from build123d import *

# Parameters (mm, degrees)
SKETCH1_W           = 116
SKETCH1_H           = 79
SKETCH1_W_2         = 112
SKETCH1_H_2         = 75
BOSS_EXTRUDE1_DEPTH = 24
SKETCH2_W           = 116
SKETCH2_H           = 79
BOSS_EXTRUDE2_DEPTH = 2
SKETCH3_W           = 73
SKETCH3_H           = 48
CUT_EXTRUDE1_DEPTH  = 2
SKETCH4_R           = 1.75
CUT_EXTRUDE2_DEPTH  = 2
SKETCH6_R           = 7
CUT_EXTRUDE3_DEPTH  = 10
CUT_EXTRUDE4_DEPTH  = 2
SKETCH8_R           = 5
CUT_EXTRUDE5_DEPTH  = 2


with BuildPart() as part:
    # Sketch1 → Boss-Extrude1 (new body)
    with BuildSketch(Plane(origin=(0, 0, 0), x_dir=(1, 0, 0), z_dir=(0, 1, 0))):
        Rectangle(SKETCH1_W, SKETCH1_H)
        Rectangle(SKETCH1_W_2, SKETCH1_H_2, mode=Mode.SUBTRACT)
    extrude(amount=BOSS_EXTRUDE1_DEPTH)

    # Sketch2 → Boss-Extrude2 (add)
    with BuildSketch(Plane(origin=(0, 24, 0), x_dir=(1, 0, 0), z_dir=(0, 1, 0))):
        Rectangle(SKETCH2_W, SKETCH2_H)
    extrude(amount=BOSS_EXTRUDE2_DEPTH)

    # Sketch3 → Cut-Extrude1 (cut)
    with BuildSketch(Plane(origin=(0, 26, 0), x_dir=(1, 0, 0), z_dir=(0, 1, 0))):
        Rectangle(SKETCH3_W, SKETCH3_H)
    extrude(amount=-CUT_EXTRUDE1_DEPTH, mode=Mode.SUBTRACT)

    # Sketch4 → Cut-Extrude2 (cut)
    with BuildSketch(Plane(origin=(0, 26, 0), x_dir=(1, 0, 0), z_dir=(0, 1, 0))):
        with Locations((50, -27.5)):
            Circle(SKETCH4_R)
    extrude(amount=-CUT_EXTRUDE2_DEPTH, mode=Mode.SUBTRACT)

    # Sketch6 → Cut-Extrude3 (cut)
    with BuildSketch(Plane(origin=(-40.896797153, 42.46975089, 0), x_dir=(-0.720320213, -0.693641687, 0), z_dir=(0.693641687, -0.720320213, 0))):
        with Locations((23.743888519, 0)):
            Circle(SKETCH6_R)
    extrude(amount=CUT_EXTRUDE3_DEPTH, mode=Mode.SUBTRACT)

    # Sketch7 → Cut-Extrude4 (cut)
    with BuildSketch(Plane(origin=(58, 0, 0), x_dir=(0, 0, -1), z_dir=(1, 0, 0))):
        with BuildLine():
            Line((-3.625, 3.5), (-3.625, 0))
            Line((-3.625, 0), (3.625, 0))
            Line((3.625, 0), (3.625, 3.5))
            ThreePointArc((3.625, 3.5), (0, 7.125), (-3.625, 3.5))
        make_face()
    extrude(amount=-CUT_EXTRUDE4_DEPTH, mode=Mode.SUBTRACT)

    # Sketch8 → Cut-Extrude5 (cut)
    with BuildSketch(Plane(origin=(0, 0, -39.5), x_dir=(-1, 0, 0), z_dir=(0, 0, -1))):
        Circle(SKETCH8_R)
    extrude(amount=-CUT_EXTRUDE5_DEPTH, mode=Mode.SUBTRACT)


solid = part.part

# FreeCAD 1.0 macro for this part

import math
import FreeCAD as App
import Part
import Sketcher

V = App.Vector

doc = App.newDocument("Part")
body = doc.addObject("PartDesign::Body", "Body")

# Sketch on XZ plane
sketch1 = body.newObject("Sketcher::SketchObject", "Sketch")
sketch1.AttachmentSupport = (doc.getObject("XZ_Plane"), [""])
sketch1.MapMode = "FlatFace"
sketch1.addGeometry([
    Part.LineSegment(V(-58, -40, 0), V(-58, 40, 0)),  # 0
    Part.LineSegment(V(-58, 40, 0), V(58, 40, 0)),  # 1
    Part.LineSegment(V(58, 40, 0), V(58, -40, 0)),  # 2
    Part.LineSegment(V(58, -40, 0), V(-58, -40, 0)),  # 3
    Part.LineSegment(V(56, 38, 0), V(-56, 38, 0)),  # 4
    Part.LineSegment(V(-56, 38, 0), V(-56, -38, 0)),  # 5
    Part.LineSegment(V(-56, -38, 0), V(56, -38, 0)),  # 6
    Part.LineSegment(V(56, -38, 0), V(56, 38, 0)),  # 7
], False)
sketch1.addConstraint([
    Sketcher.Constraint("Coincident", 0, 2, 1, 1),
    Sketcher.Constraint("Coincident", 1, 2, 2, 1),
    Sketcher.Constraint("Coincident", 2, 2, 3, 1),
    Sketcher.Constraint("Coincident", 3, 2, 0, 1),
    Sketcher.Constraint("Coincident", 4, 2, 5, 1),
    Sketcher.Constraint("Coincident", 5, 2, 6, 1),
    Sketcher.Constraint("Coincident", 6, 2, 7, 1),
    Sketcher.Constraint("Coincident", 7, 2, 4, 1),
    Sketcher.Constraint("Vertical", 0),
    Sketcher.Constraint("Horizontal", 1),
    Sketcher.Constraint("Vertical", 2),
    Sketcher.Constraint("Horizontal", 3),
    Sketcher.Constraint("Horizontal", 4),
    Sketcher.Constraint("Vertical", 5),
    Sketcher.Constraint("Horizontal", 6),
    Sketcher.Constraint("Vertical", 7),
    Sketcher.Constraint("Symmetric", 0, 2, 2, 2, -1, 1),
    Sketcher.Constraint("Symmetric", 4, 2, 6, 2, -1, 1),
    Sketcher.Constraint("DistanceX", 1, 1, 1, 2, 116.0),
    Sketcher.Constraint("DistanceX", 4, 2, 4, 1, 112.0),
    Sketcher.Constraint("DistanceY", 0, 1, 0, 2, 79.0),
    Sketcher.Constraint("DistanceY", 5, 2, 5, 1, 75.0),
])
pad1 = body.newObject("PartDesign::Pad", "Pad")
pad1.Profile = sketch1
pad1.Length = 24
pad1.Reversed = True

# Sketch on XZ plane
sketch2 = body.newObject("Sketcher::SketchObject", "Sketch001")
sketch2.AttachmentSupport = (doc.getObject("XZ_Plane"), [""])
sketch2.MapMode = "FlatFace"
sketch2.AttachmentOffset = App.Placement(V(0, 0, -24), App.Rotation())
sketch2.addGeometry([
    Part.LineSegment(V(-58, -40, 0), V(-58, 40, 0)),
    Part.LineSegment(V(-58, 40, 0), V(58, 40, 0)),
    Part.LineSegment(V(58, 40, 0), V(58, -40, 0)),
    Part.LineSegment(V(58, -40, 0), V(-58, -40, 0)),
], False)
sketch2.addConstraint([
    Sketcher.Constraint("Coincident", 0, 2, 1, 1),
    Sketcher.Constraint("Coincident", 1, 2, 2, 1),
    Sketcher.Constraint("Coincident", 2, 2, 3, 1),
    Sketcher.Constraint("Coincident", 3, 2, 0, 1),
    Sketcher.Constraint("Vertical", 0),
    Sketcher.Constraint("Horizontal", 1),
    Sketcher.Constraint("Vertical", 2),
    Sketcher.Constraint("Horizontal", 3),
    Sketcher.Constraint("Symmetric", 0, 2, 2, 2, -1, 1),
    Sketcher.Constraint("DistanceX", 1, 1, 1, 2, 116.0),
    Sketcher.Constraint("DistanceY", 0, 1, 0, 2, 79.0),
])
pad2 = body.newObject("PartDesign::Pad", "Pad001")
pad2.Profile = sketch2
pad2.Length = 2
pad2.Reversed = True

# Sketch on XZ plane
sketch3 = body.newObject("Sketcher::SketchObject", "Sketch002")
sketch3.AttachmentSupport = (doc.getObject("XZ_Plane"), [""])
sketch3.MapMode = "FlatFace"
sketch3.AttachmentOffset = App.Placement(V(0, 0, -26), App.Rotation())
sketch3.addGeometry([
    Part.LineSegment(V(-36, -24, 0), V(-36, 24, 0)),
    Part.LineSegment(V(-36, 24, 0), V(36, 24, 0)),
    Part.LineSegment(V(36, 24, 0), V(36, -24, 0)),
    Part.LineSegment(V(36, -24, 0), V(-36, -24, 0)),
], False)
sketch3.addConstraint([
    Sketcher.Constraint("Coincident", 0, 2, 1, 1),
    Sketcher.Constraint("Coincident", 1, 2, 2, 1),
    Sketcher.Constraint("Coincident", 2, 2, 3, 1),
    Sketcher.Constraint("Coincident", 3, 2, 0, 1),
    Sketcher.Constraint("Vertical", 0),
    Sketcher.Constraint("Horizontal", 1),
    Sketcher.Constraint("Vertical", 2),
    Sketcher.Constraint("Horizontal", 3),
    Sketcher.Constraint("Symmetric", 0, 2, 2, 2, -1, 1),
    Sketcher.Constraint("DistanceX", 1, 1, 1, 2, 73.0),
    Sketcher.Constraint("DistanceY", 0, 1, 0, 2, 48.0),
])
pocket1 = body.newObject("PartDesign::Pocket", "Pocket")
pocket1.Profile = sketch3
pocket1.Length = 2
pocket1.Reversed = True

# Sketch on XZ plane
sketch4 = body.newObject("Sketcher::SketchObject", "Sketch003")
sketch4.AttachmentSupport = (doc.getObject("XZ_Plane"), [""])
sketch4.MapMode = "FlatFace"
sketch4.AttachmentOffset = App.Placement(V(0, 0, -26), App.Rotation())
sketch4.addGeometry(Part.Circle(V(50, 27.5, 0), V(0, 0, 1), 1.8), False)
sketch4.addConstraint([
    Sketcher.Constraint("Diameter", 0, 3.5),
    Sketcher.Constraint("DistanceX", -1, 1, 0, 3, 50.0),
    Sketcher.Constraint("DistanceY", -1, 1, 0, 3, 27.5),
])
pocket2 = body.newObject("PartDesign::Pocket", "Pocket001")
pocket2.Profile = sketch4
pocket2.Length = 2
pocket2.Reversed = True

# Sketch on an angled plane
sketch5 = body.newObject("Sketcher::SketchObject", "Sketch004")
sketch5.Placement = App.Placement(V(-40.896797, 42.469751, 0), App.Rotation(V(-0.720320213, -0.693641687, 0), V(0, 0, -0.999999999), V(0.693641687, -0.720320213, 0), "ZXY"))
sketch5.addGeometry(Part.Circle(V(24, 0, 0), V(0, 0, 1), 7), False)
sketch5.addConstraint([
    Sketcher.Constraint("PointOnObject", 0, 3, -1),
    Sketcher.Constraint("Diameter", 0, 14.0),
    Sketcher.Constraint("DistanceX", -1, 1, 0, 3, 23.743889),
])
pocket3 = body.newObject("PartDesign::Pocket", "Pocket002")
pocket3.Profile = sketch5
pocket3.Length = 10
pocket3.Reversed = True

# Sketch on YZ plane
sketch6 = body.newObject("Sketcher::SketchObject", "Sketch005")
sketch6.AttachmentSupport = (doc.getObject("YZ_Plane"), [""])
sketch6.MapMode = "FlatFace"
sketch6.AttachmentOffset = App.Placement(V(0, 0, 58), App.Rotation())
sketch6.addGeometry([
    Part.LineSegment(V(3.5, 3.6, 0), V(0, 3.6, 0)),
    Part.LineSegment(V(0, 3.6, 0), V(0, -3.6, 0)),
    Part.LineSegment(V(0, -3.6, 0), V(3.5, -3.6, 0)),
    Part.ArcOfCircle(Part.Circle(V(3.5, 0, 0), V(0, 0, 1), 3.6), math.radians(-90), math.radians(90)),
], False)
sketch6.addConstraint([
    Sketcher.Constraint("Coincident", 0, 2, 1, 1),
    Sketcher.Constraint("Coincident", 1, 2, 2, 1),
    Sketcher.Constraint("Tangent", 2, 2, 3, 1),
    Sketcher.Constraint("Tangent", 3, 2, 0, 1),
    Sketcher.Constraint("Horizontal", 0),
    Sketcher.Constraint("Vertical", 1),
    Sketcher.Constraint("Horizontal", 2),
    Sketcher.Constraint("Symmetric", 0, 2, 1, 2, -1, 1),
    Sketcher.Constraint("DistanceX", 0, 2, 0, 1, 3.5),
    Sketcher.Constraint("Radius", 3, 3.625),
])
pocket4 = body.newObject("PartDesign::Pocket", "Pocket003")
pocket4.Profile = sketch6
pocket4.Length = 2

# Sketch on XY plane
sketch7 = body.newObject("Sketcher::SketchObject", "Sketch006")
sketch7.AttachmentSupport = (doc.getObject("XY_Plane"), [""])
sketch7.MapMode = "FlatFace"
sketch7.AttachmentOffset = App.Placement(V(0, 0, -39.5), App.Rotation())
sketch7.addGeometry(Part.Circle(V(0, 0, 0), V(0, 0, 1), 5), False)
sketch7.addConstraint([
    Sketcher.Constraint("Coincident", 0, 3, -1, 1),
    Sketcher.Constraint("Diameter", 0, 10.0),
])
pocket5 = body.newObject("PartDesign::Pocket", "Pocket004")
pocket5.Profile = sketch7
pocket5.Length = 2
pocket5.Reversed = True

doc.recompute()
